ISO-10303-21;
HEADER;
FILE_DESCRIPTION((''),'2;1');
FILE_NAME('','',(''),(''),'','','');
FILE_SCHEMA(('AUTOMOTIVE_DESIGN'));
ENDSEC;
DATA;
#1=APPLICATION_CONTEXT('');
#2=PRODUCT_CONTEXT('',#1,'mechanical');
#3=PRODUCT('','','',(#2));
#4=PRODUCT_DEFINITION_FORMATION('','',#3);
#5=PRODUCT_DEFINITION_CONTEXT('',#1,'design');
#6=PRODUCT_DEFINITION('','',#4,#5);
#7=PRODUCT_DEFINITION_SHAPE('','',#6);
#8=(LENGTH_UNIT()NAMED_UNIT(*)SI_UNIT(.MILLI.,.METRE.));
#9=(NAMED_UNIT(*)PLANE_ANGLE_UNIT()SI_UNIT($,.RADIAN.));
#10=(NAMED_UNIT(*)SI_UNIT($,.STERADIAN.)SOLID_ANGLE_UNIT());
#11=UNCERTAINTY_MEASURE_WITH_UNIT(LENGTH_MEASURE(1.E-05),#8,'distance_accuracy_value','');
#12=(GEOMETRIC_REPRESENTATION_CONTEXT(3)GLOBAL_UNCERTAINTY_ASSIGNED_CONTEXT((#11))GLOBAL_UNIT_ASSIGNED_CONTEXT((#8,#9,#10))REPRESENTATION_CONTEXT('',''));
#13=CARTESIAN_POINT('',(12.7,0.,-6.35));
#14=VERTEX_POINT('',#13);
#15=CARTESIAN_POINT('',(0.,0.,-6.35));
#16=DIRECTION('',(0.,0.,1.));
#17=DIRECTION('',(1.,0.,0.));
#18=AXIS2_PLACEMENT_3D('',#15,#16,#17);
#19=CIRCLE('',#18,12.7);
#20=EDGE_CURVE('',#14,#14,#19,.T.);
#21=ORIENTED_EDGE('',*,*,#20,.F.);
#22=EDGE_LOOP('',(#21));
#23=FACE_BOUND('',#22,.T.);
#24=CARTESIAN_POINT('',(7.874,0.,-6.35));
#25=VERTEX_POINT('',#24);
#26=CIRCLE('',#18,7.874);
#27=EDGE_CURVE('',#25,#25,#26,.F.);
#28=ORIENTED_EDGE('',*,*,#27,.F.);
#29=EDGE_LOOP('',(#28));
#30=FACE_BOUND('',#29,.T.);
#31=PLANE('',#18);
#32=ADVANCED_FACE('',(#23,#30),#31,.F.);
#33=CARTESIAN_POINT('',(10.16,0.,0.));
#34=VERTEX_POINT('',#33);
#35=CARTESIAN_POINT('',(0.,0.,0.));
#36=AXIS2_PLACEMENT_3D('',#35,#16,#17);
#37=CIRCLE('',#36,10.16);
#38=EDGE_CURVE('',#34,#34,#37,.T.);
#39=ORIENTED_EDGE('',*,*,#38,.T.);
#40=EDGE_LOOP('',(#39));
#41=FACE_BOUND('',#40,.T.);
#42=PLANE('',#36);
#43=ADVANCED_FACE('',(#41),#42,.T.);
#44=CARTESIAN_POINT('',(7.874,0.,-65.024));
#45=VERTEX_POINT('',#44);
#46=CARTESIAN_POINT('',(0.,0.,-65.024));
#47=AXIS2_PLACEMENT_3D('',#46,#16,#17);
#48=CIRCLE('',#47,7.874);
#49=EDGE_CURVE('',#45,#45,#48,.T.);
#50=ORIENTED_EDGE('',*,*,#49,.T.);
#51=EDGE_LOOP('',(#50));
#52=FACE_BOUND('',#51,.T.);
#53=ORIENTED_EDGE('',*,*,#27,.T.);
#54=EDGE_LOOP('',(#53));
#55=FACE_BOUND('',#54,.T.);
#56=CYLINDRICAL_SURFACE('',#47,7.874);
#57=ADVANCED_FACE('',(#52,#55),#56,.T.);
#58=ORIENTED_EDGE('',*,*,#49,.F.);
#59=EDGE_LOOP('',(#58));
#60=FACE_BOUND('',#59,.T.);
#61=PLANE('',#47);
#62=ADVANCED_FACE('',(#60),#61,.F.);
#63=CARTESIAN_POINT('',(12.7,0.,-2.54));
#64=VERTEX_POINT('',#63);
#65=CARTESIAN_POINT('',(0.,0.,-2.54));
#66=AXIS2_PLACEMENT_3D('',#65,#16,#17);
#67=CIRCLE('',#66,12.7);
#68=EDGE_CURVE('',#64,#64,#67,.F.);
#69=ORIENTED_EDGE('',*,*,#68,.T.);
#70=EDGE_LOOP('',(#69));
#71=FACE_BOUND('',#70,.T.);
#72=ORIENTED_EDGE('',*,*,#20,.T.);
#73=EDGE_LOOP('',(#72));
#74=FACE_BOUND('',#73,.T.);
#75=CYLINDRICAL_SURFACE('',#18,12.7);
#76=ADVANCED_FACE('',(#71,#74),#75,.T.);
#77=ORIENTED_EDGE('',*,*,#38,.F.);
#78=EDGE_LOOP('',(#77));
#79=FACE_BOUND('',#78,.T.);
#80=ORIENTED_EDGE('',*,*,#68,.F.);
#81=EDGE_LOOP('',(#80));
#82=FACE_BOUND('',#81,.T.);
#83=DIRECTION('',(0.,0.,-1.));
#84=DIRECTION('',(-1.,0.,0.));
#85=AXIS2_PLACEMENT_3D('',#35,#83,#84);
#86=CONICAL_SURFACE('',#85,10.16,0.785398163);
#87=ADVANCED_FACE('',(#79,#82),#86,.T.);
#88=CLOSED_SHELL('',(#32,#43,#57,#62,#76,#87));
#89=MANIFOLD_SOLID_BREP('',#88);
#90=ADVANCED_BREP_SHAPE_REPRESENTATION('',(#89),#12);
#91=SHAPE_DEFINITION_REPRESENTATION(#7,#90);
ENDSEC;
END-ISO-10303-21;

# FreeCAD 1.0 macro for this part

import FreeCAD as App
import Part
import Sketcher

V = App.Vector
Q = App.Units.Quantity


def edges_at(feature, points):
    """Names of the edges that pass closest to the given points."""
    edges = feature.Shape.Edges
    near = lambda p: min(range(len(edges)), key=lambda i: edges[i].distToShape(Part.Vertex(*p))[0])
    return sorted({f"Edge{near(p) + 1}" for p in points})

doc = App.newDocument("Part")
params = doc.addObject("Spreadsheet::Sheet", "Params")
for row, (alias, value) in enumerate([
    ("sketch1_diameter", "0.62 in"),
    ("pad1_length", "2.56 in"),
    ("sketch2_diameter", "1 in"),
    ("pad2_length", "0.25 in"),
    ("chamfer_size", "0.1 in"),
], start=1):
    params.set(f"A{row}", alias)
    params.set(f"B{row}", "=" + value)
    params.setAlias(f"B{row}", alias)

body = doc.addObject("PartDesign::Body", "Body")

# Sketch on XY plane
sketch1 = body.newObject("Sketcher::SketchObject", "Sketch")
sketch1.AttachmentSupport = (doc.getObject("XY_Plane"), [""])
sketch1.MapMode = "FlatFace"
sketch1.addGeometry(Part.Circle(V(0, 0, 0), V(0, 0, 1), 8), False)
sketch1.addConstraint(Sketcher.Constraint("Coincident", 0, 3, -1, 1))
sketch1.addConstraint(Sketcher.Constraint("Diameter", 0, Q("0.62 in")))
sketch1.setExpression("Constraints[1]", "Params.sketch1_diameter")
pad1 = body.newObject("PartDesign::Pad", "Pad")
pad1.Profile = sketch1
pad1.setExpression("Length", "Params.pad1_length")
pad1.Reversed = True

# Sketch on XY plane
sketch2 = body.newObject("Sketcher::SketchObject", "Sketch001")
sketch2.AttachmentSupport = (doc.getObject("XY_Plane"), [""])
sketch2.MapMode = "FlatFace"
sketch2.addGeometry(Part.Circle(V(0, 0, 0), V(0, 0, 1), 13), False)
sketch2.addConstraint(Sketcher.Constraint("Coincident", 0, 3, -1, 1))
sketch2.addConstraint(Sketcher.Constraint("Diameter", 0, Q("1 in")))
sketch2.setExpression("Constraints[1]", "Params.sketch2_diameter")
pad2 = body.newObject("PartDesign::Pad", "Pad001")
pad2.Profile = sketch2
pad2.setExpression("Length", "Params.pad2_length")
pad2.Reversed = True
doc.recompute()

chamfer = body.newObject("PartDesign::Chamfer", "Chamfer")
chamfer.Base = (pad2, edges_at(pad2, [(-12.7, 0, 0)]))
chamfer.setExpression("Size", "Params.chamfer_size")

doc.recompute()
